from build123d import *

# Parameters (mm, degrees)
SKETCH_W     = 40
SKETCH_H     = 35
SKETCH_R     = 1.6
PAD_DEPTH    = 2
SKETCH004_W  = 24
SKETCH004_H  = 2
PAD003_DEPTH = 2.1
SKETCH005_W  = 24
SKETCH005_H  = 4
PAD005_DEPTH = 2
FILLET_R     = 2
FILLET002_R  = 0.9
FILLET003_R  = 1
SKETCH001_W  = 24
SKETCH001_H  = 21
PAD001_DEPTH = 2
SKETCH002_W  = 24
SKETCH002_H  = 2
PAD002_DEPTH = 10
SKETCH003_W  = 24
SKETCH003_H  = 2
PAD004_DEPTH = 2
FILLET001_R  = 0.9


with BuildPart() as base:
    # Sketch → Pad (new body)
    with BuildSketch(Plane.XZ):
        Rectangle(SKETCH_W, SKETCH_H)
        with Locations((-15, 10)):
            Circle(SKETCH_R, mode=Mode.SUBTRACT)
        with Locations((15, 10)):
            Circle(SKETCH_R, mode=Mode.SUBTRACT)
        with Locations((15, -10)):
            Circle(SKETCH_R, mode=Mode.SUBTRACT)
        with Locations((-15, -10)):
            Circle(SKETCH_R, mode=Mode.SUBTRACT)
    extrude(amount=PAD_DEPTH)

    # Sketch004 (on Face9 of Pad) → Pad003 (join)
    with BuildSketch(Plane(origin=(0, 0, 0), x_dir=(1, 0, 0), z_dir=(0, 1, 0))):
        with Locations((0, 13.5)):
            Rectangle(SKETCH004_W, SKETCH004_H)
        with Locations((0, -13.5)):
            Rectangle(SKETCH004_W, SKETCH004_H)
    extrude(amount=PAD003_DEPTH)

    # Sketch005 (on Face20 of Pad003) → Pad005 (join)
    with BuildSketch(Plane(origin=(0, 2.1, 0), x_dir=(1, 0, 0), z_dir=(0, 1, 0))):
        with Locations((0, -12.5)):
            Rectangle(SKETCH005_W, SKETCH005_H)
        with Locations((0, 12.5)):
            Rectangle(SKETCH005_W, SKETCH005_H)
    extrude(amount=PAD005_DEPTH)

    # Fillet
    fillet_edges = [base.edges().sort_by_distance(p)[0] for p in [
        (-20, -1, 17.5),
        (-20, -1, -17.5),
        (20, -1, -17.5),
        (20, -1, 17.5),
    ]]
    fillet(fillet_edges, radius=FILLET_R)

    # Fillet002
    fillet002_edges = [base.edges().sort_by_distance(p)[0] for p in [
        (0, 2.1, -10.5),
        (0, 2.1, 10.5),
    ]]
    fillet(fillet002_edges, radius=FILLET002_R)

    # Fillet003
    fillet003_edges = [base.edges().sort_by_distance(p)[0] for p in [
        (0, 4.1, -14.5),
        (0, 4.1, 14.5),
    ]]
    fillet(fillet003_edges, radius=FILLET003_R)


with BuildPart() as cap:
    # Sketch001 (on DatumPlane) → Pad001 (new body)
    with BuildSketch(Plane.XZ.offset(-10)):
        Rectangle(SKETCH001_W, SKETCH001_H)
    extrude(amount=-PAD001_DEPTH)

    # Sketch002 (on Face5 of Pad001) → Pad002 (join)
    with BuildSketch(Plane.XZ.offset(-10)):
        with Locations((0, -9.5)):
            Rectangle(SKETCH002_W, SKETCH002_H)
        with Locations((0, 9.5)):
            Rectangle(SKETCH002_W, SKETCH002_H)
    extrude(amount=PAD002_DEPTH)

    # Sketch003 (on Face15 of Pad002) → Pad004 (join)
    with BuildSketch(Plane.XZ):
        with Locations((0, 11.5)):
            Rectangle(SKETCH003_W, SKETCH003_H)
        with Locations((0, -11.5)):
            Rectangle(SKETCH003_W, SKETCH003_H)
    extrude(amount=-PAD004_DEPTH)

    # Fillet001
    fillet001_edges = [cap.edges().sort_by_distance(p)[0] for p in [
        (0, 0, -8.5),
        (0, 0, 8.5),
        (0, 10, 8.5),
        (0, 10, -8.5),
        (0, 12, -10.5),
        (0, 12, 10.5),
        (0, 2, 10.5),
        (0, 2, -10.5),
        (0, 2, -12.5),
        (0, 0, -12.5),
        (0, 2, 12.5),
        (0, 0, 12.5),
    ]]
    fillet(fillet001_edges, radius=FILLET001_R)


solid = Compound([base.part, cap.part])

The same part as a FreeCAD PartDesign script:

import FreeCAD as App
import Part
import Sketcher

V = App.Vector


def edges_at(feature, points):
    """Names of the edges that pass closest to the given points."""
    edges = feature.Shape.Edges
    near = lambda p: min(range(len(edges)), key=lambda i: edges[i].distToShape(Part.Vertex(*p))[0])
    return sorted({f"Edge{near(p) + 1}" for p in points})


def add_polygon(sketch, points):
    """Adds a closed chain of lines whose ends are joined by coincident constraints."""
    first, n = sketch.GeometryCount, len(points)
    for a, b in zip(points, points[1:] + points[:1]):
        sketch.addGeometry(Part.LineSegment(App.Vector(*a, 0), App.Vector(*b, 0)), False)
    for i in range(n):
        sketch.addConstraint(Sketcher.Constraint("Coincident", first + i, 2, first + (i + 1) % n, 1))

doc = App.newDocument("Part")
params = doc.addObject("Spreadsheet::Sheet", "Params")
for row, (alias, value) in enumerate([
    ("sketch1_diameter", "3.2 mm"),
    ("sketch1_width", "40 mm"),
    ("sketch1_height", "35 mm"),
    ("pad1_length", "2 mm"),
    ("sketch2_width", "24 mm"),
    ("sketch2_height", "2 mm"),
    ("pad2_length", "2.1 mm"),
    ("sketch3_width", "24 mm"),
    ("sketch3_height", "4 mm"),
    ("pad3_length", "2 mm"),
    ("fillet_radius", "2 mm"),
    ("fillet2_radius", "0.9 mm"),
    ("fillet3_radius", "1 mm"),
    ("sketch4_width", "24 mm"),
    ("sketch4_height", "21 mm"),
    ("pad4_length", "2 mm"),
    ("sketch5_width", "24 mm"),
    ("sketch5_height", "2 mm"),
    ("pad5_length", "10 mm"),
    ("sketch6_width", "24 mm"),
    ("sketch6_height", "2 mm"),
    ("pad6_length", "2 mm"),
    ("fillet4_radius", "0.9 mm"),
], start=1):
    params.set(f"A{row}", alias)
    params.set(f"B{row}", "=" + value)
    params.setAlias(f"B{row}", alias)

body = doc.addObject("PartDesign::Body", "Body")

# Sketch on XZ plane
sketch1 = body.newObject("Sketcher::SketchObject", "Sketch")
sketch1.AttachmentSupport = (doc.getObject("XZ_Plane"), [""])
sketch1.MapMode = "FlatFace"
add_polygon(sketch1, [(-20, 17.5), (-20, -17.5), (20, -17.5), (20, 17.5)])  # lines 0-3
sketch1.addGeometry(Part.Circle(V(-15, -10, 0), V(0, 0, 1), 1.6), False)  # 4
sketch1.addGeometry(Part.Circle(V(15, -10, 0), V(0, 0, 1), 1.6), False)  # 5
sketch1.addGeometry(Part.Circle(V(-15, 10, 0), V(0, 0, 1), 1.6), False)  # 6
sketch1.addGeometry(Part.Circle(V(15, 10, 0), V(0, 0, 1), 1.6), False)  # 7
sketch1.addConstraint([
    Sketcher.Constraint("Vertical", 0),
    Sketcher.Constraint("Horizontal", 1),
    Sketcher.Constraint("Vertical", 2),
    Sketcher.Constraint("Horizontal", 3),
    Sketcher.Constraint("Equal", 4, 5),
    Sketcher.Constraint("Equal", 5, 6),
    Sketcher.Constraint("Equal", 6, 7),
    Sketcher.Constraint("Symmetric", 5, 3, 6, 3, -1, 1),
    Sketcher.Constraint("Symmetric", 4, 3, 7, 3, -1, 1),
    Sketcher.Constraint("Symmetric", 0, 2, 2, 2, -1, 1),
    Sketcher.Constraint("Symmetric", 4, 3, 5, 3, -2),
    Sketcher.Constraint("Diameter", 4, 3.2),
    Sketcher.Constraint("DistanceX", 1, 1, 1, 2, 40.0),
    Sketcher.Constraint("DistanceY", 0, 2, 0, 1, 35.0),
    Sketcher.Constraint("DistanceX", 4, 3, -1, 1, 15.0),
    Sketcher.Constraint("DistanceY", 4, 3, -1, 1, 10.0),
])
sketch1.setExpression("Constraints[15]", "Params.sketch1_diameter")
sketch1.setExpression("Constraints[16]", "Params.sketch1_width")
sketch1.setExpression("Constraints[17]", "Params.sketch1_height")
pad1 = body.newObject("PartDesign::Pad", "Pad")
pad1.Profile = sketch1
pad1.setExpression("Length", "Params.pad1_length")

# Sketch on XZ plane
sketch2 = body.newObject("Sketcher::SketchObject", "Sketch001")
sketch2.AttachmentSupport = (doc.getObject("XZ_Plane"), [""])
sketch2.MapMode = "FlatFace"
add_polygon(sketch2, [(-12, -14.5), (-12, -12.5), (12, -12.5), (12, -14.5)])  # lines 0-3
add_polygon(sketch2, [(-12, 12.5), (-12, 14.5), (12, 14.5), (12, 12.5)])  # lines 4-7
sketch2.addConstraint([
    Sketcher.Constraint("Vertical", 0),
    Sketcher.Constraint("Horizontal", 1),
    Sketcher.Constraint("Vertical", 2),
    Sketcher.Constraint("Horizontal", 3),
    Sketcher.Constraint("Vertical", 4),
    Sketcher.Constraint("Horizontal", 5),
    Sketcher.Constraint("Vertical", 6),
    Sketcher.Constraint("Horizontal", 7),
    Sketcher.Constraint("Symmetric", 2, 2, 4, 2, -1, 1),
    Sketcher.Constraint("Symmetric", 0, 2, 6, 2, -1, 1),
    Sketcher.Constraint("Vertical", 3, 2, 4, 2),
    Sketcher.Constraint("DistanceX", 1, 1, 1, 2, 24.0),
    Sketcher.Constraint("DistanceY", 0, 1, 0, 2, 2.0),
    Sketcher.Constraint("DistanceY", 0, 2, 4, 2, 27.0),
])
sketch2.setExpression("Constraints[19]", "Params.sketch2_width")
sketch2.setExpression("Constraints[20]", "Params.sketch2_height")
pad2 = body.newObject("PartDesign::Pad", "Pad001")
pad2.Profile = sketch2
pad2.setExpression("Length", "Params.pad2_length")
pad2.Reversed = True

# Sketch on XZ plane
sketch3 = body.newObject("Sketcher::SketchObject", "Sketch002")
sketch3.AttachmentSupport = (doc.getObject("XZ_Plane"), [""])
sketch3.MapMode = "FlatFace"
sketch3.AttachmentOffset = App.Placement(V(0, 0, -2.1), App.Rotation())
add_polygon(sketch3, [(-12, 10.5), (-12, 14.5), (12, 14.5), (12, 10.5)])  # lines 0-3
add_polygon(sketch3, [(-12, -14.5), (-12, -10.5), (12, -10.5), (12, -14.5)])  # lines 4-7
sketch3.addConstraint([
    Sketcher.Constraint("Vertical", 0),
    Sketcher.Constraint("Horizontal", 1),
    Sketcher.Constraint("Vertical", 2),
    Sketcher.Constraint("Horizontal", 3),
    Sketcher.Constraint("Vertical", 4),
    Sketcher.Constraint("Horizontal", 5),
    Sketcher.Constraint("Vertical", 6),
    Sketcher.Constraint("Horizontal", 7),
    Sketcher.Constraint("Symmetric", 2, 2, 4, 2, -1, 1),
    Sketcher.Constraint("Symmetric", 0, 2, 6, 2, -1, 1),
    Sketcher.Constraint("Vertical", 3, 2, 4, 2),
    Sketcher.Constraint("DistanceX", 1, 1, 1, 2, 24.0),
    Sketcher.Constraint("DistanceY", 0, 1, 0, 2, 4.0),
    Sketcher.Constraint("DistanceY", 4, 2, 3, 2, 21.0),
])
sketch3.setExpression("Constraints[19]", "Params.sketch3_width")
sketch3.setExpression("Constraints[20]", "Params.sketch3_height")
pad3 = body.newObject("PartDesign::Pad", "Pad002")
pad3.Profile = sketch3
pad3.setExpression("Length", "Params.pad3_length")
pad3.Reversed = True
doc.recompute()

fillet = body.newObject("PartDesign::Fillet", "Fillet")
fillet.Base = (pad3, edges_at(pad3, [
    (-20, -1, 17.5),
    (-20, -1, -17.5),
    (20, -1, -17.5),
    (20, -1, 17.5),
]))
fillet.setExpression("Radius", "Params.fillet_radius")
doc.recompute()

fillet2 = body.newObject("PartDesign::Fillet", "Fillet001")
fillet2.Base = (fillet, edges_at(fillet, [(0, 2.1, -10.5), (0, 2.1, 10.5)]))
fillet2.setExpression("Radius", "Params.fillet2_radius")
doc.recompute()

fillet3 = body.newObject("PartDesign::Fillet", "Fillet002")
fillet3.Base = (fillet2, edges_at(fillet2, [(0, 4.1, -14.5), (0, 4.1, 14.5)]))
fillet3.setExpression("Radius", "Params.fillet3_radius")
body2 = doc.addObject("PartDesign::Body", "Body001")

# Sketch on XZ plane
sketch4 = body2.newObject("Sketcher::SketchObject", "Sketch003")
sketch4.AttachmentSupport = (doc.getObject("XZ_Plane001"), [""])
sketch4.MapMode = "FlatFace"
sketch4.AttachmentOffset = App.Placement(V(0, 0, -10), App.Rotation())
add_polygon(sketch4, [(-12, 10), (-12, -10), (12, -10), (12, 10)])  # lines 0-3
sketch4.addConstraint([
    Sketcher.Constraint("Vertical", 0),
    Sketcher.Constraint("Horizontal", 1),
    Sketcher.Constraint("Vertical", 2),
    Sketcher.Constraint("Horizontal", 3),
    Sketcher.Constraint("Symmetric", 0, 2, 2, 2, -1, 1),
    Sketcher.Constraint("DistanceX", 1, 1, 1, 2, 24.0),
    Sketcher.Constraint("DistanceY", 0, 2, 0, 1, 21.0),
])
sketch4.setExpression("Constraints[9]", "Params.sketch4_width")
sketch4.setExpression("Constraints[10]", "Params.sketch4_height")
pad4 = body2.newObject("PartDesign::Pad", "Pad003")
pad4.Profile = sketch4
pad4.setExpression("Length", "Params.pad4_length")
pad4.Reversed = True

# Sketch on XZ plane
sketch5 = body2.newObject("Sketcher::SketchObject", "Sketch004")
sketch5.AttachmentSupport = (doc.getObject("XZ_Plane001"), [""])
sketch5.MapMode = "FlatFace"
sketch5.AttachmentOffset = App.Placement(V(0, 0, -10), App.Rotation())
add_polygon(sketch5, [(-12, -8.5), (-12, -10.5), (12, -10.5), (12, -8.5)])  # lines 0-3
add_polygon(sketch5, [(-12, 10.5), (-12, 8.5), (12, 8.5), (12, 10.5)])  # lines 4-7
sketch5.addConstraint([
    Sketcher.Constraint("Vertical", 0),
    Sketcher.Constraint("Horizontal", 1),
    Sketcher.Constraint("Vertical", 2),
    Sketcher.Constraint("Horizontal", 3),
    Sketcher.Constraint("Vertical", 4),
    Sketcher.Constraint("Horizontal", 5),
    Sketcher.Constraint("Vertical", 6),
    Sketcher.Constraint("Horizontal", 7),
    Sketcher.Constraint("Symmetric", 2, 2, 4, 2, -1, 1),
    Sketcher.Constraint("Symmetric", 0, 2, 6, 2, -1, 1),
    Sketcher.Constraint("Vertical", 3, 2, 4, 2),
    Sketcher.Constraint("DistanceX", 1, 1, 1, 2, 24.0),
    Sketcher.Constraint("DistanceY", 0, 2, 0, 1, 2.0),
    Sketcher.Constraint("DistanceY", 3, 2, 4, 2, 17.0),
])
sketch5.setExpression("Constraints[19]", "Params.sketch5_width")
sketch5.setExpression("Constraints[20]", "Params.sketch5_height")
pad5 = body2.newObject("PartDesign::Pad", "Pad004")
pad5.Profile = sketch5
pad5.setExpression("Length", "Params.pad5_length")

# Sketch on XZ plane
sketch6 = body2.newObject("Sketcher::SketchObject", "Sketch005")
sketch6.AttachmentSupport = (doc.getObject("XZ_Plane001"), [""])
sketch6.MapMode = "FlatFace"
add_polygon(sketch6, [(-12, 12.5), (-12, 10.5), (12, 10.5), (12, 12.5)])  # lines 0-3
add_polygon(sketch6, [(-12, -10.5), (-12, -12.5), (12, -12.5), (12, -10.5)])  # lines 4-7
sketch6.addConstraint([
    Sketcher.Constraint("Vertical", 0),
    Sketcher.Constraint("Horizontal", 1),
    Sketcher.Constraint("Vertical", 2),
    Sketcher.Constraint("Horizontal", 3),
    Sketcher.Constraint("Vertical", 4),
    Sketcher.Constraint("Horizontal", 5),
    Sketcher.Constraint("Vertical", 6),
    Sketcher.Constraint("Horizontal", 7),
    Sketcher.Constraint("Symmetric", 2, 2, 4, 2, -1, 1),
    Sketcher.Constraint("Symmetric", 0, 2, 6, 2, -1, 1),
    Sketcher.Constraint("Vertical", 3, 2, 4, 2),
    Sketcher.Constraint("DistanceX", 1, 1, 1, 2, 24.0),
    Sketcher.Constraint("DistanceY", 0, 2, 0, 1, 2.0),
    Sketcher.Constraint("DistanceY", 4, 2, 0, 2, 23.0),
])
sketch6.setExpression("Constraints[19]", "Params.sketch6_width")
sketch6.setExpression("Constraints[20]", "Params.sketch6_height")
pad6 = body2.newObject("PartDesign::Pad", "Pad005")
pad6.Profile = sketch6
pad6.setExpression("Length", "Params.pad6_length")
pad6.Reversed = True
doc.recompute()

fillet4 = body2.newObject("PartDesign::Fillet", "Fillet003")
fillet4.Base = (pad6, edges_at(pad6, [
    (0, 0, -8.5),
    (0, 0, 8.5),
    (0, 10, 8.5),
    (0, 10, -8.5),
    (0, 12, -10.5),
    (0, 12, 10.5),
    (0, 2, 10.5),
    (0, 2, -10.5),
    (0, 2, -12.5),
    (0, 0, -12.5),
    (0, 2, 12.5),
    (0, 0, 12.5),
]))
fillet4.setExpression("Radius", "Params.fillet4_radius")

doc.recompute()
